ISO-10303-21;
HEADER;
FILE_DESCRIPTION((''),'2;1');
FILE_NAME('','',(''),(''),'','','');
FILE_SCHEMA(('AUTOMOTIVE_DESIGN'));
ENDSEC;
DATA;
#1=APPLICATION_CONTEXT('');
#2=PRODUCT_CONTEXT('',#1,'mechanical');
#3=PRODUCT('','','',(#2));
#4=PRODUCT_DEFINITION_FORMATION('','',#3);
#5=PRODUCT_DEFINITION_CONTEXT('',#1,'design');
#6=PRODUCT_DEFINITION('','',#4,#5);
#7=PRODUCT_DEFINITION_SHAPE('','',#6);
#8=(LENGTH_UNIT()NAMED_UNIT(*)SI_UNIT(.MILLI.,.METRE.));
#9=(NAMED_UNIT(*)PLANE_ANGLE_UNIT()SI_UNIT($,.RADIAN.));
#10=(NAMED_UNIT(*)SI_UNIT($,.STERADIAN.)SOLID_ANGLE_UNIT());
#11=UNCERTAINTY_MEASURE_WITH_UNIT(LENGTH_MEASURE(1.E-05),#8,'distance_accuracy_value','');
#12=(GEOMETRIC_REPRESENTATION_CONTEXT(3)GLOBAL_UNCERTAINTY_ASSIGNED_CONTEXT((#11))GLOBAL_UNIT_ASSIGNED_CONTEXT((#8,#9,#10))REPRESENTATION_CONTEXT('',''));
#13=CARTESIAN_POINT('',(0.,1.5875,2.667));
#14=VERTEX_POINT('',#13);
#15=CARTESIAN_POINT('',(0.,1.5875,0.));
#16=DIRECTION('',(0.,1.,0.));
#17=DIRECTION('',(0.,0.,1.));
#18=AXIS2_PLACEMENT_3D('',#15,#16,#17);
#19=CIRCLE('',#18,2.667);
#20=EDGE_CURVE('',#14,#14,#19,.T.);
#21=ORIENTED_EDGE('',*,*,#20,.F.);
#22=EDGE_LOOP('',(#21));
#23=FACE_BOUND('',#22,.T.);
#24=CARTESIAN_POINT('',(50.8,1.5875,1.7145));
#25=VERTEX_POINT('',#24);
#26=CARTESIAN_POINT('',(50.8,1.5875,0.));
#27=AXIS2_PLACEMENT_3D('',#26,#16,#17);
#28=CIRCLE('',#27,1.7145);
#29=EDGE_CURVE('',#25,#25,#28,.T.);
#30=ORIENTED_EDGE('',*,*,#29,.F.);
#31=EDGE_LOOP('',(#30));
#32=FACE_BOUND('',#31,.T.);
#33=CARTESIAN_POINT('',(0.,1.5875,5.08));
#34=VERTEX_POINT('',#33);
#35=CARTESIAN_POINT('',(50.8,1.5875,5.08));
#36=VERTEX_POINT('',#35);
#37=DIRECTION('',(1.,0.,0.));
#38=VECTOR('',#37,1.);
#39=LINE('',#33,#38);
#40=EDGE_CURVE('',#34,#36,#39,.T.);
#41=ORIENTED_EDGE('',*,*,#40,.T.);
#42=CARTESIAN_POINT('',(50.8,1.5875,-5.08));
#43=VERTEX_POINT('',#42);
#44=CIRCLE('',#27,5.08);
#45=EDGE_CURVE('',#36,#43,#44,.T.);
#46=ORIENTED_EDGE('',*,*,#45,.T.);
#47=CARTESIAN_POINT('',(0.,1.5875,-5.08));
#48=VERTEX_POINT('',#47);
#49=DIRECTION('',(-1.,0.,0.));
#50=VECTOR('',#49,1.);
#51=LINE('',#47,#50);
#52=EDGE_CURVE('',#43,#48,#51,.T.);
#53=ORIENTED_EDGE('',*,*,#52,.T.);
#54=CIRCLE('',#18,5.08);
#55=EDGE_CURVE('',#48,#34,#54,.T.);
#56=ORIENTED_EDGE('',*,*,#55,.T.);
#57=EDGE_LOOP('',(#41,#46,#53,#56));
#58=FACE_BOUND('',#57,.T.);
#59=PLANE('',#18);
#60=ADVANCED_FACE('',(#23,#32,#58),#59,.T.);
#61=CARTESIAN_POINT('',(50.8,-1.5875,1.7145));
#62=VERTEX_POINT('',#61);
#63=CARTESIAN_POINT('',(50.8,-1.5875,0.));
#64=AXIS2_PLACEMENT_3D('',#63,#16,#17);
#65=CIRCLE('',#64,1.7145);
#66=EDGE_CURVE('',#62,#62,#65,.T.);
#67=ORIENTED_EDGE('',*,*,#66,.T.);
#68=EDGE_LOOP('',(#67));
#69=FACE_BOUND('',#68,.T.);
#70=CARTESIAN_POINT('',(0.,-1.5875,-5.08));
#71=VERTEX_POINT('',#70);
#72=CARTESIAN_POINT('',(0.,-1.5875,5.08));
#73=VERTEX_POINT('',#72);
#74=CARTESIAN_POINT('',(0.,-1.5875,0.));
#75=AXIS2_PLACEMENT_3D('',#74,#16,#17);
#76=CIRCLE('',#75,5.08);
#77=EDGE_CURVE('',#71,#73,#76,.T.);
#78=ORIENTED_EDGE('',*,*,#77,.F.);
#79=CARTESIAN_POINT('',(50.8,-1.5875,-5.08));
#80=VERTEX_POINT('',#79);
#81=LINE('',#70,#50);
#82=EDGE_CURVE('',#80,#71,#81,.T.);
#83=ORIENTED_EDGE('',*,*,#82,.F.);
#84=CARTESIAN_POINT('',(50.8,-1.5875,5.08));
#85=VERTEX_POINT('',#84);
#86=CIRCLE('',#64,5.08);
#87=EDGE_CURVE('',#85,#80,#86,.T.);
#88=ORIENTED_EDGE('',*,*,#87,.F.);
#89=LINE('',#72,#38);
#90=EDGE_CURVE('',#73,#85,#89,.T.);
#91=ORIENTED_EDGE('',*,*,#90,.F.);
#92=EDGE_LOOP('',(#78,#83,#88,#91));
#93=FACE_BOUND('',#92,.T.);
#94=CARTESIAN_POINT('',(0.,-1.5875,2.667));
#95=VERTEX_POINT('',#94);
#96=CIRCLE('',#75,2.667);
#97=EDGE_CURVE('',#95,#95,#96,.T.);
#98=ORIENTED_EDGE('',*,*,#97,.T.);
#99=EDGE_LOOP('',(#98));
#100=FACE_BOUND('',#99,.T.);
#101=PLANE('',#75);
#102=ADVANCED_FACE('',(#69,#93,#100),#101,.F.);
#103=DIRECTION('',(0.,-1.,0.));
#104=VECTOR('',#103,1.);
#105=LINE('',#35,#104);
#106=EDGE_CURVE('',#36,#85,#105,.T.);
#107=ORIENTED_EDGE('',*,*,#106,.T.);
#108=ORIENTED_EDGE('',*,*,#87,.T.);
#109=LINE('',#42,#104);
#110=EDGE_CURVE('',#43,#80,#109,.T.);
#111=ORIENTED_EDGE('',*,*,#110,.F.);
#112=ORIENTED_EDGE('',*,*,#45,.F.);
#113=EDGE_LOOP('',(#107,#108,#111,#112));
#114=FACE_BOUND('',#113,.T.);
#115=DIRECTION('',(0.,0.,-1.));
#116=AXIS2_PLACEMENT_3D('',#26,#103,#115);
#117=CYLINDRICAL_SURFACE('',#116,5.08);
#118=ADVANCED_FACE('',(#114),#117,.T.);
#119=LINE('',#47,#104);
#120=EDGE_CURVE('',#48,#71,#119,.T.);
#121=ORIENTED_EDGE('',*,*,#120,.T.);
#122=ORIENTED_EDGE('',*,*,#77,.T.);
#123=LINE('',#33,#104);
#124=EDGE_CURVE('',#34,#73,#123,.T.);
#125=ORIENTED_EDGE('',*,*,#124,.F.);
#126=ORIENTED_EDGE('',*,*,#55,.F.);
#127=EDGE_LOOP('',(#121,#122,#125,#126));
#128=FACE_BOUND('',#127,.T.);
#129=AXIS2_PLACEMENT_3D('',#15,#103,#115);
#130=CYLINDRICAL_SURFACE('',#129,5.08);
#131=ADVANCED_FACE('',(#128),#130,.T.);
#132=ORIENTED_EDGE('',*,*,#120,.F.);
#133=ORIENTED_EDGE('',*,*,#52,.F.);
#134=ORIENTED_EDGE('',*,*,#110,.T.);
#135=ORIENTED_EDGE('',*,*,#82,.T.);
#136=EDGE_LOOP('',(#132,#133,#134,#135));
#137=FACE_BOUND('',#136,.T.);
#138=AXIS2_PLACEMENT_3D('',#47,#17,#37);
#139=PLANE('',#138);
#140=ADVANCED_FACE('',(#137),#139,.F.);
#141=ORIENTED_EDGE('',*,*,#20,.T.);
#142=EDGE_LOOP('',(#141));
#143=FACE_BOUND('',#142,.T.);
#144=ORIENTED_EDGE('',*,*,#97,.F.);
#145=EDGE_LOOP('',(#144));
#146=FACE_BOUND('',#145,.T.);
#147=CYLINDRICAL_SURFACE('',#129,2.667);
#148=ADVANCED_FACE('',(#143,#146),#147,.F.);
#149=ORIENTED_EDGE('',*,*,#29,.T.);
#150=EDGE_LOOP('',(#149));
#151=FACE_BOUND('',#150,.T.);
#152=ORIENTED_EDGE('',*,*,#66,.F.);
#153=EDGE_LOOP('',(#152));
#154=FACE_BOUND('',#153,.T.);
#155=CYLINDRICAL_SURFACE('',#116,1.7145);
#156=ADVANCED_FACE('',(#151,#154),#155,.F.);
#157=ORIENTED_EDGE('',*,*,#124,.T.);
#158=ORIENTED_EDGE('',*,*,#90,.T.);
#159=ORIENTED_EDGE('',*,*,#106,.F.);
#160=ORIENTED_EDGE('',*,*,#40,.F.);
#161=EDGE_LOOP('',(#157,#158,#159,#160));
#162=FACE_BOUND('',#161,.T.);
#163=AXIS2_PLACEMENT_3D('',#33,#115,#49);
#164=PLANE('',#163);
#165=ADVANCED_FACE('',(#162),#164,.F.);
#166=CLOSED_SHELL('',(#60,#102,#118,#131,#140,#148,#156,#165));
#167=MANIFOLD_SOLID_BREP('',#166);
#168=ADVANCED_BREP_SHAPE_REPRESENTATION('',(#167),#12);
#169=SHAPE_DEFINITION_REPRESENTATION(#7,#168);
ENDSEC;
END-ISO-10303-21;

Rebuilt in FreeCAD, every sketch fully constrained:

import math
import FreeCAD as App
import Part
import Sketcher
Q = App.Units.Quantity

doc = App.newDocument("Part")
body = doc.addObject("PartDesign::Body", "Body")

# Sketch on XZ plane
sketch1 = doc.addObject("Sketcher::SketchObject", "Sketch")
body.addObject(sketch1)
sketch1.AttachmentSupport = (doc.XZ_Plane, [""])
sketch1.MapMode = "FlatFace"
sketch1.addGeometry([
    Part.LineSegment(App.Vector(50.8, -5.1, 0), App.Vector(0, -5.1, 0)),  # 0
    Part.ArcOfCircle(Part.Circle(App.Vector(0, 0, 0), App.Vector(0, 0, 1), 5.1), math.radians(90), math.radians(270)),  # 1
    Part.LineSegment(App.Vector(0, 5.1, 0), App.Vector(50.8, 5.1, 0)),  # 2
    Part.ArcOfCircle(Part.Circle(App.Vector(50.8, 0, 0), App.Vector(0, 0, 1), 5.1), math.radians(-90), math.radians(90)),  # 3
    Part.Circle(App.Vector(50.8, 0, 0), App.Vector(0, 0, 1), 1.7),  # 4
    Part.Circle(App.Vector(0, 0, 0), App.Vector(0, 0, 1), 2.7),  # 5
], False)
sketch1.addConstraint([
    Sketcher.Constraint("Tangent", 0, 2, 1, 2),
    Sketcher.Constraint("Tangent", 1, 1, 2, 1),
    Sketcher.Constraint("Tangent", 2, 2, 3, 2),
    Sketcher.Constraint("Tangent", 3, 1, 0, 1),
    Sketcher.Constraint("Horizontal", 0),
    Sketcher.Constraint("Horizontal", 2),
    Sketcher.Constraint("Coincident", 1, 3, -1, 1),
    Sketcher.Constraint("Coincident", 5, 3, -1, 1),
    Sketcher.Constraint("Coincident", 4, 3, 3, 3),
    Sketcher.Constraint("Radius", 1, Q("0.2 in")),
    Sketcher.Constraint("Diameter", 5, Q("0.21 in")),
    Sketcher.Constraint("DistanceX", 0, 2, 0, 1, Q("2 in")),
    Sketcher.Constraint("Diameter", 4, Q("0.135 in")),
])
pad1 = doc.addObject("PartDesign::Pad", "Pad")
body.addObject(pad1)
pad1.Profile = sketch1
pad1.Length = Q("0.125 in")
pad1.Midplane = True

doc.recompute()
